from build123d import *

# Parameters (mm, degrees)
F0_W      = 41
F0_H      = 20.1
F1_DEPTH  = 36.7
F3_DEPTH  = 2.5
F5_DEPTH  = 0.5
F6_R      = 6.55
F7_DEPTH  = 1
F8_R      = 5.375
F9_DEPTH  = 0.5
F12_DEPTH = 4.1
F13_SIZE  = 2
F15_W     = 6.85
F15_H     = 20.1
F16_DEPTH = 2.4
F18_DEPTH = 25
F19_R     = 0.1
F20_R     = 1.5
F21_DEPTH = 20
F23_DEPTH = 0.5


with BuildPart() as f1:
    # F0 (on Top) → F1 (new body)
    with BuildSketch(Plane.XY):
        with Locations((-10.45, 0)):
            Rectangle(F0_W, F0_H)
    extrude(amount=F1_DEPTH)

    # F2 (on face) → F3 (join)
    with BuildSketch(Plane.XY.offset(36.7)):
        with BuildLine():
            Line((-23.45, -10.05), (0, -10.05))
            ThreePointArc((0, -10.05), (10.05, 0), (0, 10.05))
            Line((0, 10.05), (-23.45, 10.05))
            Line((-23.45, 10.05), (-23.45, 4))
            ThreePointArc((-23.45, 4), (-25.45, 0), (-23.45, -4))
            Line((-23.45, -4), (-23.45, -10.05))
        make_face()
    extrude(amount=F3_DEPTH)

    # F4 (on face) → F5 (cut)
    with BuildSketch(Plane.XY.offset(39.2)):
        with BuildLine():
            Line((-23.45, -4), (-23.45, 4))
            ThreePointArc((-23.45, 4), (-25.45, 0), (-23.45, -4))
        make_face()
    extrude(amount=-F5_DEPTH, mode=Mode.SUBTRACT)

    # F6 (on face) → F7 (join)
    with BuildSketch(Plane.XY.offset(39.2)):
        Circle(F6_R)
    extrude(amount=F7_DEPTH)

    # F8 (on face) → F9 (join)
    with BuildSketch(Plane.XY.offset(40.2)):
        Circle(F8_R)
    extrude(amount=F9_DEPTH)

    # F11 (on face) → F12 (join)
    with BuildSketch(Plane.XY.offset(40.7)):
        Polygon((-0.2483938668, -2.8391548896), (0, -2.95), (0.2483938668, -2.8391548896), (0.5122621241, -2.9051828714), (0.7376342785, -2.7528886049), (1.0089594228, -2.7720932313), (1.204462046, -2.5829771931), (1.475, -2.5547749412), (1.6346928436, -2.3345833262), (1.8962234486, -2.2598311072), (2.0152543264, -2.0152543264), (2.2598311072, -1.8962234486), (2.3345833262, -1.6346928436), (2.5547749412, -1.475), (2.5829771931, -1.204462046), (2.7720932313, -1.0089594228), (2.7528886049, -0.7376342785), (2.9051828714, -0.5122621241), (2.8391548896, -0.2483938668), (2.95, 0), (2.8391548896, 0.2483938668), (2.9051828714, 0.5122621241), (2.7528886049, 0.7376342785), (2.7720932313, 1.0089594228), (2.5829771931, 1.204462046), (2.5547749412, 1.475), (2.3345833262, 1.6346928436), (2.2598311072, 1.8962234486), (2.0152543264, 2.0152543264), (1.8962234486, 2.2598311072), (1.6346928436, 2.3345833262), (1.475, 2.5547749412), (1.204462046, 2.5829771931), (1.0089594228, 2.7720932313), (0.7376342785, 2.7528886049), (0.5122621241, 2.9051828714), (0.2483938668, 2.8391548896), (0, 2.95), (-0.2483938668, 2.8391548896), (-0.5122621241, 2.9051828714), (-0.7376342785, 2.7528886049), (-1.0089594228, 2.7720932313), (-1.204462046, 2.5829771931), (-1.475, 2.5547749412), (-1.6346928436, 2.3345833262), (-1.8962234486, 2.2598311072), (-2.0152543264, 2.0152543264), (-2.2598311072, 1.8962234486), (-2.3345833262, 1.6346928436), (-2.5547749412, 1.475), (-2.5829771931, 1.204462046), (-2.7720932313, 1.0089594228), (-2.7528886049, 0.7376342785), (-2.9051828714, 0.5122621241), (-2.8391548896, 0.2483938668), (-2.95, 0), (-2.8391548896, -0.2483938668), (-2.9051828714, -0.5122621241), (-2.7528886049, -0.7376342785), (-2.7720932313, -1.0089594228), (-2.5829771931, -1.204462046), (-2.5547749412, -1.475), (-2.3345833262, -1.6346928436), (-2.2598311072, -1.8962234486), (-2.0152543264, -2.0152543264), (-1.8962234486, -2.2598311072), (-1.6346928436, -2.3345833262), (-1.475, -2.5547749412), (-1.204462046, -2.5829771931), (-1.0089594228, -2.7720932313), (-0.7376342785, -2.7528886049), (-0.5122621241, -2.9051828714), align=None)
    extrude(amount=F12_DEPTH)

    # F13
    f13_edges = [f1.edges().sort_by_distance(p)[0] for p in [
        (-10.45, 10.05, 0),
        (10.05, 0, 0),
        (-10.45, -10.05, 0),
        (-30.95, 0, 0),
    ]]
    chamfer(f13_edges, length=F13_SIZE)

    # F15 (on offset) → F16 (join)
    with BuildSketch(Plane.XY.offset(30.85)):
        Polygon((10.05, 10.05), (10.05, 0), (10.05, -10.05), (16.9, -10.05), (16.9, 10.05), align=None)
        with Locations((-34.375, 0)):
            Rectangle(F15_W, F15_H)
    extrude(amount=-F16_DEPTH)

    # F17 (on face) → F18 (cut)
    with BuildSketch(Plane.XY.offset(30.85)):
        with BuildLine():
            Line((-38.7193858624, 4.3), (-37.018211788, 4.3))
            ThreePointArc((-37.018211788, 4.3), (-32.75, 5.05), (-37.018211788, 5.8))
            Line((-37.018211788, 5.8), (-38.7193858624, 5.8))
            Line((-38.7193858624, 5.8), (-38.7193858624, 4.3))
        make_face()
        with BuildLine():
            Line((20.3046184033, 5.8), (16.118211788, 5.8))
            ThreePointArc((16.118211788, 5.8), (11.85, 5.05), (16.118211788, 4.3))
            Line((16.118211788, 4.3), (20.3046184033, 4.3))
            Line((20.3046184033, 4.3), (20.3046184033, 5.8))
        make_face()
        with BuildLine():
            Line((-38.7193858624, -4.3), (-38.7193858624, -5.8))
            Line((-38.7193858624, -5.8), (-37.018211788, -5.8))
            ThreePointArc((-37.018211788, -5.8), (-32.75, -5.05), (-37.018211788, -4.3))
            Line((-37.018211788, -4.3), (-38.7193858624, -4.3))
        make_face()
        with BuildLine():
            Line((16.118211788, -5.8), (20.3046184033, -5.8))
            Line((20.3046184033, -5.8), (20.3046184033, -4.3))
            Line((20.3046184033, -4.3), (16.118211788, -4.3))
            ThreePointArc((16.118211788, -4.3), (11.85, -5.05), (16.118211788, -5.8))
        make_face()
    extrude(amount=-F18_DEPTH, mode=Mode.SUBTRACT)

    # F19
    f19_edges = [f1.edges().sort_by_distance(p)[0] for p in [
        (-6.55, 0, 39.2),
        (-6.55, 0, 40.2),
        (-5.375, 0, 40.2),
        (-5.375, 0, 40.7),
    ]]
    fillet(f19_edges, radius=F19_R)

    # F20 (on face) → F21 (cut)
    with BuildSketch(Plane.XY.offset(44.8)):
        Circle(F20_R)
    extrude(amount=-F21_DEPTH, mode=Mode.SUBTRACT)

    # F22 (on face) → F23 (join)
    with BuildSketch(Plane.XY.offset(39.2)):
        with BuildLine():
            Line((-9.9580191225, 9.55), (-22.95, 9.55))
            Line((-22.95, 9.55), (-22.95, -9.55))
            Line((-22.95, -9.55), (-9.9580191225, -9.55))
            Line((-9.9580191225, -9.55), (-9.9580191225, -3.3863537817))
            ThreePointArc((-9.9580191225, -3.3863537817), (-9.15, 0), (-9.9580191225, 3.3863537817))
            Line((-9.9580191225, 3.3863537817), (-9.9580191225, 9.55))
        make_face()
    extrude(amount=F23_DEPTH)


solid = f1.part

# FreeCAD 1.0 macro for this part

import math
import FreeCAD as App
import Part
import Sketcher
Q = App.Units.Quantity


def edges_at(feature, points):
    """Names of the edges that pass closest to the given points."""
    edges = feature.Shape.Edges
    near = lambda p: min(range(len(edges)), key=lambda i: edges[i].distToShape(Part.Vertex(*p))[0])
    return sorted({f"Edge{near(p) + 1}" for p in points})

doc = App.newDocument("Part")
body = doc.addObject("PartDesign::Body", "Body")

sketch1 = doc.addObject("Sketcher::SketchObject", "Sketch")
body.addObject(sketch1)
sketch1.AttachmentSupport = (doc.XY_Plane, [""])
sketch1.MapMode = "FlatFace"
sketch1.addGeometry([
    Part.LineSegment(App.Vector(-30.95, 10.05, 0), App.Vector(-30.95, -10.05, 0)),
    Part.LineSegment(App.Vector(-30.95, -10.05, 0), App.Vector(10.05, -10.05, 0)),
    Part.LineSegment(App.Vector(10.05, -10.05, 0), App.Vector(10.05, 10.05, 0)),
    Part.LineSegment(App.Vector(10.05, 10.05, 0), App.Vector(-30.95, 10.05, 0)),
], False)
sketch1.addConstraint([
    Sketcher.Constraint("Coincident", 0, 2, 1, 1),
    Sketcher.Constraint("Coincident", 1, 2, 2, 1),
    Sketcher.Constraint("Coincident", 2, 2, 3, 1),
    Sketcher.Constraint("Coincident", 3, 2, 0, 1),
    Sketcher.Constraint("Vertical", 0),
    Sketcher.Constraint("Horizontal", 1),
    Sketcher.Constraint("Vertical", 2),
    Sketcher.Constraint("Horizontal", 3),
    Sketcher.Constraint("DistanceX", 1, 1, 1, 2, Q("41 mm")),
    Sketcher.Constraint("DistanceY", 0, 2, 0, 1, Q("20.1 mm")),
    Sketcher.Constraint("DistanceX", 0, 2, -1, 1, Q("30.95 mm")),
    Sketcher.Constraint("DistanceY", 0, 2, -1, 1, Q("10.05 mm")),
])
pad1 = doc.addObject("PartDesign::Pad", "Pad")
body.addObject(pad1)
pad1.Profile = sketch1
pad1.Length = 36.7

sketch2 = doc.addObject("Sketcher::SketchObject", "Sketch001")
body.addObject(sketch2)
sketch2.AttachmentSupport = (doc.XY_Plane, [""])
sketch2.MapMode = "FlatFace"
sketch2.AttachmentOffset = App.Placement(App.Vector(0, 0, 36.7), App.Rotation())
sketch2.addGeometry([
    Part.LineSegment(App.Vector(-23.45, -10.05, 0), App.Vector(0, -10.05, 0)),
    Part.ArcOfCircle(Part.Circle(App.Vector(0, 0, 0), App.Vector(0, 0, 1), 10.05), math.radians(-90), math.radians(90)),
    Part.LineSegment(App.Vector(0, 10.05, 0), App.Vector(-23.45, 10.05, 0)),
    Part.LineSegment(App.Vector(-23.45, 10.05, 0), App.Vector(-23.45, 4, 0)),
    Part.ArcOfCircle(Part.Circle(App.Vector(-20.45, 0, 0), App.Vector(0, 0, 1), 5), math.radians(126.869898), math.radians(233.130102)),
    Part.LineSegment(App.Vector(-23.45, -4, 0), App.Vector(-23.45, -10.05, 0)),
], False)
sketch2.addConstraint([
    Sketcher.Constraint("Tangent", 0, 2, 1, 1),
    Sketcher.Constraint("Tangent", 1, 2, 2, 1),
    Sketcher.Constraint("Coincident", 2, 2, 3, 1),
    Sketcher.Constraint("Coincident", 3, 2, 4, 1),
    Sketcher.Constraint("Coincident", 4, 2, 5, 1),
    Sketcher.Constraint("Coincident", 5, 2, 0, 1),
    Sketcher.Constraint("Horizontal", 0),
    Sketcher.Constraint("Horizontal", 2),
    Sketcher.Constraint("Vertical", 3),
    Sketcher.Constraint("Vertical", 5),
    Sketcher.Constraint("Coincident", 1, 3, -1, 1),
    Sketcher.Constraint("Symmetric", 3, 2, 4, 2, -1),
    Sketcher.Constraint("Radius", 4, Q("5 mm")),
    Sketcher.Constraint("Radius", 1, Q("10.05 mm")),
    Sketcher.Constraint("DistanceY", -1, 1, 3, 2, Q("4 mm")),
    Sketcher.Constraint("DistanceX", 0, 1, 0, 2, Q("23.45 mm")),
])
pad2 = doc.addObject("PartDesign::Pad", "Pad001")
body.addObject(pad2)
pad2.Profile = sketch2
pad2.Length = 2.5

sketch3 = doc.addObject("Sketcher::SketchObject", "Sketch002")
body.addObject(sketch3)
sketch3.AttachmentSupport = (doc.XY_Plane, [""])
sketch3.MapMode = "FlatFace"
sketch3.AttachmentOffset = App.Placement(App.Vector(0, 0, 39.2), App.Rotation())
sketch3.addGeometry([
    Part.LineSegment(App.Vector(-23.45, -4, 0), App.Vector(-23.45, 4, 0)),
    Part.ArcOfCircle(Part.Circle(App.Vector(-20.45, 0, 0), App.Vector(0, 0, 1), 5), math.radians(126.869898), math.radians(233.130102)),
], False)
sketch3.addConstraint([
    Sketcher.Constraint("Coincident", 0, 1, 1, 2),
    Sketcher.Constraint("Coincident", 1, 1, 0, 2),
    Sketcher.Constraint("Vertical", 0),
    Sketcher.Constraint("PointOnObject", 1, 3, -1),
    Sketcher.Constraint("Radius", 1, Q("5 mm")),
    Sketcher.Constraint("DistanceY", 0, 1, 0, 2, Q("8 mm")),
    Sketcher.Constraint("DistanceX", 1, 3, -1, 1, Q("20.45 mm")),
])
pocket1 = doc.addObject("PartDesign::Pocket", "Pocket")
body.addObject(pocket1)
pocket1.Profile = sketch3
pocket1.Length = 0.5

sketch4 = doc.addObject("Sketcher::SketchObject", "Sketch003")
body.addObject(sketch4)
sketch4.AttachmentSupport = (doc.XY_Plane, [""])
sketch4.MapMode = "FlatFace"
sketch4.AttachmentOffset = App.Placement(App.Vector(0, 0, 39.2), App.Rotation())
sketch4.addGeometry(Part.Circle(App.Vector(0, 0, 0), App.Vector(0, 0, 1), 6.55), False)
sketch4.addConstraint([
    Sketcher.Constraint("Coincident", 0, 3, -1, 1),
    Sketcher.Constraint("Diameter", 0, Q("13.1 mm")),
])
pad3 = doc.addObject("PartDesign::Pad", "Pad002")
body.addObject(pad3)
pad3.Profile = sketch4
pad3.Length = 1

sketch5 = doc.addObject("Sketcher::SketchObject", "Sketch004")
body.addObject(sketch5)
sketch5.AttachmentSupport = (doc.XY_Plane, [""])
sketch5.MapMode = "FlatFace"
sketch5.AttachmentOffset = App.Placement(App.Vector(0, 0, 40.2), App.Rotation())
sketch5.addGeometry(Part.Circle(App.Vector(0, 0, 0), App.Vector(0, 0, 1), 5.375), False)
sketch5.addConstraint([
    Sketcher.Constraint("Coincident", 0, 3, -1, 1),
    Sketcher.Constraint("Diameter", 0, Q("10.75 mm")),
])
pad4 = doc.addObject("PartDesign::Pad", "Pad003")
body.addObject(pad4)
pad4.Profile = sketch5
pad4.Length = 0.5

sketch6 = doc.addObject("Sketcher::SketchObject", "Sketch005")
body.addObject(sketch6)
sketch6.AttachmentSupport = (doc.XY_Plane, [""])
sketch6.MapMode = "FlatFace"
sketch6.AttachmentOffset = App.Placement(App.Vector(0, 0, 40.7), App.Rotation())
sketch6.addGeometry([
    Part.LineSegment(App.Vector(-0.248394, -2.839155, 0), App.Vector(0, -2.95, 0)),
    Part.LineSegment(App.Vector(0, -2.95, 0), App.Vector(0.248394, -2.839155, 0)),
    Part.LineSegment(App.Vector(0.248394, -2.839155, 0), App.Vector(0.512262, -2.905183, 0)),
    Part.LineSegment(App.Vector(0.512262, -2.905183, 0), App.Vector(0.737634, -2.752889, 0)),
    Part.LineSegment(App.Vector(0.737634, -2.752889, 0), App.Vector(1.008959, -2.772093, 0)),
    Part.LineSegment(App.Vector(1.008959, -2.772093, 0), App.Vector(1.204462, -2.582977, 0)),
    Part.LineSegment(App.Vector(1.204462, -2.582977, 0), App.Vector(1.475, -2.554775, 0)),
    Part.LineSegment(App.Vector(1.475, -2.554775, 0), App.Vector(1.634693, -2.334583, 0)),
    Part.LineSegment(App.Vector(1.634693, -2.334583, 0), App.Vector(1.896223, -2.259831, 0)),
    Part.LineSegment(App.Vector(1.896223, -2.259831, 0), App.Vector(2.015254, -2.015254, 0)),
    Part.LineSegment(App.Vector(2.015254, -2.015254, 0), App.Vector(2.259831, -1.896223, 0)),
    Part.LineSegment(App.Vector(2.259831, -1.896223, 0), App.Vector(2.334583, -1.634693, 0)),
    Part.LineSegment(App.Vector(2.334583, -1.634693, 0), App.Vector(2.554775, -1.475, 0)),
    Part.LineSegment(App.Vector(2.554775, -1.475, 0), App.Vector(2.582977, -1.204462, 0)),
    Part.LineSegment(App.Vector(2.582977, -1.204462, 0), App.Vector(2.772093, -1.008959, 0)),
    Part.LineSegment(App.Vector(2.772093, -1.008959, 0), App.Vector(2.752889, -0.737634, 0)),
    Part.LineSegment(App.Vector(2.752889, -0.737634, 0), App.Vector(2.905183, -0.512262, 0)),
    Part.LineSegment(App.Vector(2.905183, -0.512262, 0), App.Vector(2.839155, -0.248394, 0)),
    Part.LineSegment(App.Vector(2.839155, -0.248394, 0), App.Vector(2.95, 0, 0)),
    Part.LineSegment(App.Vector(2.95, 0, 0), App.Vector(2.839155, 0.248394, 0)),
    Part.LineSegment(App.Vector(2.839155, 0.248394, 0), App.Vector(2.905183, 0.512262, 0)),
    Part.LineSegment(App.Vector(2.905183, 0.512262, 0), App.Vector(2.752889, 0.737634, 0)),
    Part.LineSegment(App.Vector(2.752889, 0.737634, 0), App.Vector(2.772093, 1.008959, 0)),
    Part.LineSegment(App.Vector(2.772093, 1.008959, 0), App.Vector(2.582977, 1.204462, 0)),
    Part.LineSegment(App.Vector(2.582977, 1.204462, 0), App.Vector(2.554775, 1.475, 0)),
    Part.LineSegment(App.Vector(2.554775, 1.475, 0), App.Vector(2.334583, 1.634693, 0)),
    Part.LineSegment(App.Vector(2.334583, 1.634693, 0), App.Vector(2.259831, 1.896223, 0)),
    Part.LineSegment(App.Vector(2.259831, 1.896223, 0), App.Vector(2.015254, 2.015254, 0)),
    Part.LineSegment(App.Vector(2.015254, 2.015254, 0), App.Vector(1.896223, 2.259831, 0)),
    Part.LineSegment(App.Vector(1.896223, 2.259831, 0), App.Vector(1.634693, 2.334583, 0)),
    Part.LineSegment(App.Vector(1.634693, 2.334583, 0), App.Vector(1.475, 2.554775, 0)),
    Part.LineSegment(App.Vector(1.475, 2.554775, 0), App.Vector(1.204462, 2.582977, 0)),
    Part.LineSegment(App.Vector(1.204462, 2.582977, 0), App.Vector(1.008959, 2.772093, 0)),
    Part.LineSegment(App.Vector(1.008959, 2.772093, 0), App.Vector(0.737634, 2.752889, 0)),
    Part.LineSegment(App.Vector(0.737634, 2.752889, 0), App.Vector(0.512262, 2.905183, 0)),
    Part.LineSegment(App.Vector(0.512262, 2.905183, 0), App.Vector(0.248394, 2.839155, 0)),
    Part.LineSegment(App.Vector(0.248394, 2.839155, 0), App.Vector(0, 2.95, 0)),
    Part.LineSegment(App.Vector(0, 2.95, 0), App.Vector(-0.248394, 2.839155, 0)),
    Part.LineSegment(App.Vector(-0.248394, 2.839155, 0), App.Vector(-0.512262, 2.905183, 0)),
    Part.LineSegment(App.Vector(-0.512262, 2.905183, 0), App.Vector(-0.737634, 2.752889, 0)),
    Part.LineSegment(App.Vector(-0.737634, 2.752889, 0), App.Vector(-1.008959, 2.772093, 0)),
    Part.LineSegment(App.Vector(-1.008959, 2.772093, 0), App.Vector(-1.204462, 2.582977, 0)),
    Part.LineSegment(App.Vector(-1.204462, 2.582977, 0), App.Vector(-1.475, 2.554775, 0)),
    Part.LineSegment(App.Vector(-1.475, 2.554775, 0), App.Vector(-1.634693, 2.334583, 0)),
    Part.LineSegment(App.Vector(-1.634693, 2.334583, 0), App.Vector(-1.896223, 2.259831, 0)),
    Part.LineSegment(App.Vector(-1.896223, 2.259831, 0), App.Vector(-2.015254, 2.015254, 0)),
    Part.LineSegment(App.Vector(-2.015254, 2.015254, 0), App.Vector(-2.259831, 1.896223, 0)),
    Part.LineSegment(App.Vector(-2.259831, 1.896223, 0), App.Vector(-2.334583, 1.634693, 0)),
    Part.LineSegment(App.Vector(-2.334583, 1.634693, 0), App.Vector(-2.554775, 1.475, 0)),
    Part.LineSegment(App.Vector(-2.554775, 1.475, 0), App.Vector(-2.582977, 1.204462, 0)),
    Part.LineSegment(App.Vector(-2.582977, 1.204462, 0), App.Vector(-2.772093, 1.008959, 0)),
    Part.LineSegment(App.Vector(-2.772093, 1.008959, 0), App.Vector(-2.752889, 0.737634, 0)),
    Part.LineSegment(App.Vector(-2.752889, 0.737634, 0), App.Vector(-2.905183, 0.512262, 0)),
    Part.LineSegment(App.Vector(-2.905183, 0.512262, 0), App.Vector(-2.839155, 0.248394, 0)),
    Part.LineSegment(App.Vector(-2.839155, 0.248394, 0), App.Vector(-2.95, 0, 0)),
    Part.LineSegment(App.Vector(-2.95, 0, 0), App.Vector(-2.839155, -0.248394, 0)),
    Part.LineSegment(App.Vector(-2.839155, -0.248394, 0), App.Vector(-2.905183, -0.512262, 0)),
    Part.LineSegment(App.Vector(-2.905183, -0.512262, 0), App.Vector(-2.752889, -0.737634, 0)),
    Part.LineSegment(App.Vector(-2.752889, -0.737634, 0), App.Vector(-2.772093, -1.008959, 0)),
    Part.LineSegment(App.Vector(-2.772093, -1.008959, 0), App.Vector(-2.582977, -1.204462, 0)),
    Part.LineSegment(App.Vector(-2.582977, -1.204462, 0), App.Vector(-2.554775, -1.475, 0)),
    Part.LineSegment(App.Vector(-2.554775, -1.475, 0), App.Vector(-2.334583, -1.634693, 0)),
    Part.LineSegment(App.Vector(-2.334583, -1.634693, 0), App.Vector(-2.259831, -1.896223, 0)),
    Part.LineSegment(App.Vector(-2.259831, -1.896223, 0), App.Vector(-2.015254, -2.015254, 0)),
    Part.LineSegment(App.Vector(-2.015254, -2.015254, 0), App.Vector(-1.896223, -2.259831, 0)),
    Part.LineSegment(App.Vector(-1.896223, -2.259831, 0), App.Vector(-1.634693, -2.334583, 0)),
    Part.LineSegment(App.Vector(-1.634693, -2.334583, 0), App.Vector(-1.475, -2.554775, 0)),
    Part.LineSegment(App.Vector(-1.475, -2.554775, 0), App.Vector(-1.204462, -2.582977, 0)),
    Part.LineSegment(App.Vector(-1.204462, -2.582977, 0), App.Vector(-1.008959, -2.772093, 0)),
    Part.LineSegment(App.Vector(-1.008959, -2.772093, 0), App.Vector(-0.737634, -2.752889, 0)),
    Part.LineSegment(App.Vector(-0.737634, -2.752889, 0), App.Vector(-0.512262, -2.905183, 0)),
    Part.LineSegment(App.Vector(-0.512262, -2.905183, 0), App.Vector(-0.248394, -2.839155, 0)),
], False)
sketch6.addConstraint([
    Sketcher.Constraint("Coincident", 0, 2, 1, 1),
    Sketcher.Constraint("Coincident", 1, 2, 2, 1),
    Sketcher.Constraint("Coincident", 2, 2, 3, 1),
    Sketcher.Constraint("Coincident", 3, 2, 4, 1),
    Sketcher.Constraint("Coincident", 4, 2, 5, 1),
    Sketcher.Constraint("Coincident", 5, 2, 6, 1),
    Sketcher.Constraint("Coincident", 6, 2, 7, 1),
    Sketcher.Constraint("Coincident", 7, 2, 8, 1),
    Sketcher.Constraint("Coincident", 8, 2, 9, 1),
    Sketcher.Constraint("Coincident", 9, 2, 10, 1),
    Sketcher.Constraint("Coincident", 10, 2, 11, 1),
    Sketcher.Constraint("Coincident", 11, 2, 12, 1),
    Sketcher.Constraint("Coincident", 12, 2, 13, 1),
    Sketcher.Constraint("Coincident", 13, 2, 14, 1),
    Sketcher.Constraint("Coincident", 14, 2, 15, 1),
    Sketcher.Constraint("Coincident", 15, 2, 16, 1),
    Sketcher.Constraint("Coincident", 16, 2, 17, 1),
    Sketcher.Constraint("Coincident", 17, 2, 18, 1),
    Sketcher.Constraint("Coincident", 18, 2, 19, 1),
    Sketcher.Constraint("Coincident", 19, 2, 20, 1),
    Sketcher.Constraint("Coincident", 20, 2, 21, 1),
    Sketcher.Constraint("Coincident", 21, 2, 22, 1),
    Sketcher.Constraint("Coincident", 22, 2, 23, 1),
    Sketcher.Constraint("Coincident", 23, 2, 24, 1),
    Sketcher.Constraint("Coincident", 24, 2, 25, 1),
    Sketcher.Constraint("Coincident", 25, 2, 26, 1),
    Sketcher.Constraint("Coincident", 26, 2, 27, 1),
    Sketcher.Constraint("Coincident", 27, 2, 28, 1),
    Sketcher.Constraint("Coincident", 28, 2, 29, 1),
    Sketcher.Constraint("Coincident", 29, 2, 30, 1),
    Sketcher.Constraint("Coincident", 30, 2, 31, 1),
    Sketcher.Constraint("Coincident", 31, 2, 32, 1),
    Sketcher.Constraint("Coincident", 32, 2, 33, 1),
    Sketcher.Constraint("Coincident", 33, 2, 34, 1),
    Sketcher.Constraint("Coincident", 34, 2, 35, 1),
    Sketcher.Constraint("Coincident", 35, 2, 36, 1),
    Sketcher.Constraint("Coincident", 36, 2, 37, 1),
    Sketcher.Constraint("Coincident", 37, 2, 38, 1),
    Sketcher.Constraint("Coincident", 38, 2, 39, 1),
    Sketcher.Constraint("Coincident", 39, 2, 40, 1),
    Sketcher.Constraint("Coincident", 40, 2, 41, 1),
    Sketcher.Constraint("Coincident", 41, 2, 42, 1),
    Sketcher.Constraint("Coincident", 42, 2, 43, 1),
    Sketcher.Constraint("Coincident", 43, 2, 44, 1),
    Sketcher.Constraint("Coincident", 44, 2, 45, 1),
    Sketcher.Constraint("Coincident", 45, 2, 46, 1),
    Sketcher.Constraint("Coincident", 46, 2, 47, 1),
    Sketcher.Constraint("Coincident", 47, 2, 48, 1),
    Sketcher.Constraint("Coincident", 48, 2, 49, 1),
    Sketcher.Constraint("Coincident", 49, 2, 50, 1),
    Sketcher.Constraint("Coincident", 50, 2, 51, 1),
    Sketcher.Constraint("Coincident", 51, 2, 52, 1),
    Sketcher.Constraint("Coincident", 52, 2, 53, 1),
    Sketcher.Constraint("Coincident", 53, 2, 54, 1),
    Sketcher.Constraint("Coincident", 54, 2, 55, 1),
    Sketcher.Constraint("Coincident", 55, 2, 56, 1),
    Sketcher.Constraint("Coincident", 56, 2, 57, 1),
    Sketcher.Constraint("Coincident", 57, 2, 58, 1),
    Sketcher.Constraint("Coincident", 58, 2, 59, 1),
    Sketcher.Constraint("Coincident", 59, 2, 60, 1),
    Sketcher.Constraint("Coincident", 60, 2, 61, 1),
    Sketcher.Constraint("Coincident", 61, 2, 62, 1),
    Sketcher.Constraint("Coincident", 62, 2, 63, 1),
    Sketcher.Constraint("Coincident", 63, 2, 64, 1),
    Sketcher.Constraint("Coincident", 64, 2, 65, 1),
    Sketcher.Constraint("Coincident", 65, 2, 66, 1),
    Sketcher.Constraint("Coincident", 66, 2, 67, 1),
    Sketcher.Constraint("Coincident", 67, 2, 68, 1),
    Sketcher.Constraint("Coincident", 68, 2, 69, 1),
    Sketcher.Constraint("Coincident", 69, 2, 70, 1),
    Sketcher.Constraint("Coincident", 70, 2, 71, 1),
    Sketcher.Constraint("Coincident", 71, 2, 0, 1),
    Sketcher.Constraint("Symmetric", 0, 2, 36, 2, -1, 1),
    Sketcher.Constraint("Symmetric", 1, 2, 37, 2, -1, 1),
    Sketcher.Constraint("Symmetric", 2, 2, 38, 2, -1, 1),
    Sketcher.Constraint("Symmetric", 3, 2, 39, 2, -1, 1),
    Sketcher.Constraint("Symmetric", 4, 2, 40, 2, -1, 1),
    Sketcher.Constraint("Symmetric", 5, 2, 41, 2, -1, 1),
    Sketcher.Constraint("Symmetric", 6, 2, 42, 2, -1, 1),
    Sketcher.Constraint("Symmetric", 7, 2, 43, 2, -1, 1),
    Sketcher.Constraint("Symmetric", 8, 2, 44, 2, -1, 1),
    Sketcher.Constraint("Symmetric", 9, 2, 45, 2, -1, 1),
    Sketcher.Constraint("Symmetric", 10, 2, 46, 2, -1, 1),
    Sketcher.Constraint("Symmetric", 11, 2, 47, 2, -1, 1),
    Sketcher.Constraint("Symmetric", 12, 2, 48, 2, -1, 1),
    Sketcher.Constraint("Symmetric", 13, 2, 49, 2, -1, 1),
    Sketcher.Constraint("Symmetric", 14, 2, 50, 2, -1, 1),
    Sketcher.Constraint("Symmetric", 15, 2, 51, 2, -1, 1),
    Sketcher.Constraint("Symmetric", 16, 2, 52, 2, -1, 1),
    Sketcher.Constraint("Symmetric", 17, 2, 53, 2, -1, 1),
    Sketcher.Constraint("Symmetric", 18, 2, 54, 2, -1, 1),
    Sketcher.Constraint("Symmetric", 19, 2, 55, 2, -1, 1),
    Sketcher.Constraint("Symmetric", 20, 2, 56, 2, -1, 1),
    Sketcher.Constraint("Symmetric", 21, 2, 57, 2, -1, 1),
    Sketcher.Constraint("Symmetric", 22, 2, 58, 2, -1, 1),
    Sketcher.Constraint("Symmetric", 23, 2, 59, 2, -1, 1),
    Sketcher.Constraint("Symmetric", 24, 2, 60, 2, -1, 1),
    Sketcher.Constraint("Symmetric", 25, 2, 61, 2, -1, 1),
    Sketcher.Constraint("Symmetric", 26, 2, 62, 2, -1, 1),
    Sketcher.Constraint("Symmetric", 27, 2, 63, 2, -1, 1),
    Sketcher.Constraint("Symmetric", 28, 2, 64, 2, -1, 1),
    Sketcher.Constraint("Symmetric", 29, 2, 65, 2, -1, 1),
    Sketcher.Constraint("Symmetric", 30, 2, 66, 2, -1, 1),
    Sketcher.Constraint("Symmetric", 31, 2, 67, 2, -1, 1),
    Sketcher.Constraint("Symmetric", 32, 2, 68, 2, -1, 1),
    Sketcher.Constraint("Symmetric", 33, 2, 69, 2, -1, 1),
    Sketcher.Constraint("Symmetric", 34, 2, 70, 2, -1, 1),
    Sketcher.Constraint("Symmetric", 35, 2, 71, 2, -1, 1),
    Sketcher.Constraint("Symmetric", 35, 2, 37, 2, -2),
    Sketcher.Constraint("Symmetric", 34, 2, 38, 2, -2),
    Sketcher.Constraint("Symmetric", 33, 2, 39, 2, -2),
    Sketcher.Constraint("Symmetric", 32, 2, 40, 2, -2),
    Sketcher.Constraint("Symmetric", 31, 2, 41, 2, -2),
    Sketcher.Constraint("Symmetric", 30, 2, 42, 2, -2),
    Sketcher.Constraint("Symmetric", 29, 2, 43, 2, -2),
    Sketcher.Constraint("Symmetric", 28, 2, 44, 2, -2),
    Sketcher.Constraint("Symmetric", 27, 2, 45, 2, -2),
    Sketcher.Constraint("Symmetric", 26, 2, 46, 2, -2),
    Sketcher.Constraint("Symmetric", 25, 2, 47, 2, -2),
    Sketcher.Constraint("Symmetric", 24, 2, 48, 2, -2),
    Sketcher.Constraint("Symmetric", 23, 2, 49, 2, -2),
    Sketcher.Constraint("Symmetric", 22, 2, 50, 2, -2),
    Sketcher.Constraint("Symmetric", 21, 2, 51, 2, -2),
    Sketcher.Constraint("Symmetric", 20, 2, 52, 2, -2),
    Sketcher.Constraint("Symmetric", 19, 2, 53, 2, -2),
    Sketcher.Constraint("PointOnObject", 0, 2, -2),
    Sketcher.Constraint("PointOnObject", 18, 2, -1),
    Sketcher.Constraint("Perpendicular", 0, 18),
    Sketcher.Constraint("Perpendicular", 2, 20),
    Sketcher.Constraint("Perpendicular", 3, 21),
    Sketcher.Constraint("Perpendicular", 4, 22),
    Sketcher.Constraint("Perpendicular", 5, 23),
    Sketcher.Constraint("Perpendicular", 6, 24),
    Sketcher.Constraint("Perpendicular", 7, 25),
    Sketcher.Constraint("Perpendicular", 8, 26),
    Sketcher.Constraint("Perpendicular", 9, 27),
    Sketcher.Constraint("Equal", 1, 2),
    Sketcher.Constraint("Equal", 2, 3),
    Sketcher.Constraint("Equal", 3, 4),
    Sketcher.Constraint("Equal", 4, 5),
    Sketcher.Constraint("Equal", 5, 6),
    Sketcher.Constraint("Equal", 6, 7),
    Sketcher.Constraint("Equal", 7, 8),
    Sketcher.Constraint("Equal", 8, 9),
    Sketcher.Constraint("Equal", 9, 10),
    Sketcher.Constraint("Equal", 10, 11),
    Sketcher.Constraint("Equal", 11, 12),
    Sketcher.Constraint("Equal", 12, 13),
    Sketcher.Constraint("Equal", 13, 14),
    Sketcher.Constraint("Equal", 14, 15),
    Sketcher.Constraint("Equal", 15, 16),
    Sketcher.Constraint("Equal", 16, 17),
    Sketcher.Constraint("Equal", 17, 18),
    Sketcher.Constraint("DistanceY", 0, 2, -1, 1, Q("2.95 mm")),
    Sketcher.Constraint("DistanceX", -1, 1, 6, 2, Q("1.475 mm")),
    Sketcher.Constraint("DistanceY", 3, 2, -1, 1, Q("2.752889 mm")),
    Sketcher.Constraint("DistanceX", -1, 1, 4, 2, Q("1.008959 mm")),
    Sketcher.Constraint("DistanceY", 8, 2, -1, 1, Q("2.259831 mm")),
    Sketcher.Constraint("Distance", 0, Q("0.272004 mm")),
    Sketcher.Constraint("DistanceX", -1, 1, 1, 2, Q("0.248394 mm")),
    Sketcher.Constraint("DistanceX", -1, 1, 2, 2, Q("0.512262 mm")),
    Sketcher.Constraint("DistanceX", -1, 1, 5, 2, Q("1.204462 mm")),
    Sketcher.Constraint("DistanceX", -1, 1, 7, 2, Q("1.634693 mm")),
])
pad5 = doc.addObject("PartDesign::Pad", "Pad004")
body.addObject(pad5)
pad5.Profile = sketch6
pad5.Length = 4.1
doc.recompute()

chamfer = doc.addObject("PartDesign::Chamfer", "Chamfer")
body.addObject(chamfer)
chamfer.Base = (pad5, edges_at(pad5, [
    (-10.45, 10.05, 0),
    (10.05, 0, 0),
    (-10.45, -10.05, 0),
    (-30.95, 0, 0),
]))
chamfer.Size = 2

sketch7 = doc.addObject("Sketcher::SketchObject", "Sketch006")
body.addObject(sketch7)
sketch7.AttachmentSupport = (doc.XY_Plane, [""])
sketch7.MapMode = "FlatFace"
sketch7.AttachmentOffset = App.Placement(App.Vector(0, 0, 30.85), App.Rotation())
sketch7.addGeometry([
    Part.LineSegment(App.Vector(10.05, 10.05, 0), App.Vector(10.05, -10.05, 0)),
    Part.LineSegment(App.Vector(10.05, -10.05, 0), App.Vector(16.9, -10.05, 0)),
    Part.LineSegment(App.Vector(16.9, -10.05, 0), App.Vector(16.9, 10.05, 0)),
    Part.LineSegment(App.Vector(16.9, 10.05, 0), App.Vector(10.05, 10.05, 0)),
    Part.LineSegment(App.Vector(-37.8, 10.05, 0), App.Vector(-37.8, -10.05, 0)),
    Part.LineSegment(App.Vector(-37.8, -10.05, 0), App.Vector(-30.95, -10.05, 0)),
    Part.LineSegment(App.Vector(-30.95, -10.05, 0), App.Vector(-30.95, 10.05, 0)),
    Part.LineSegment(App.Vector(-30.95, 10.05, 0), App.Vector(-37.8, 10.05, 0)),
], False)
sketch7.addConstraint([
    Sketcher.Constraint("Coincident", 0, 2, 1, 1),
    Sketcher.Constraint("Coincident", 1, 2, 2, 1),
    Sketcher.Constraint("Coincident", 2, 2, 3, 1),
    Sketcher.Constraint("Coincident", 3, 2, 0, 1),
    Sketcher.Constraint("Coincident", 4, 2, 5, 1),
    Sketcher.Constraint("Coincident", 5, 2, 6, 1),
    Sketcher.Constraint("Coincident", 6, 2, 7, 1),
    Sketcher.Constraint("Coincident", 7, 2, 4, 1),
    Sketcher.Constraint("Vertical", 0),
    Sketcher.Constraint("Horizontal", 1),
    Sketcher.Constraint("Vertical", 2),
    Sketcher.Constraint("Horizontal", 3),
    Sketcher.Constraint("Vertical", 4),
    Sketcher.Constraint("Horizontal", 5),
    Sketcher.Constraint("Vertical", 6),
    Sketcher.Constraint("Horizontal", 7),
    Sketcher.Constraint("Horizontal", 1, 2, 4, 2),
    Sketcher.Constraint("Horizontal", 3, 2, 6, 2),
    Sketcher.Constraint("Equal", 3, 5),
    Sketcher.Constraint("DistanceY", 0, 2, 0, 1, Q("20.1 mm")),
    Sketcher.Constraint("DistanceX", 5, 2, 0, 2, Q("41 mm")),
    Sketcher.Constraint("DistanceX", 1, 1, 1, 2, Q("6.85 mm")),
    Sketcher.Constraint("DistanceX", -1, 1, 1, 2, Q("16.9 mm")),
    Sketcher.Constraint("DistanceY", 0, 2, -1, 1, Q("10.05 mm")),
])
pad6 = doc.addObject("PartDesign::Pad", "Pad005")
body.addObject(pad6)
pad6.Profile = sketch7
pad6.Length = 2.4
pad6.Reversed = True

sketch8 = doc.addObject("Sketcher::SketchObject", "Sketch007")
body.addObject(sketch8)
sketch8.AttachmentSupport = (doc.XY_Plane, [""])
sketch8.MapMode = "FlatFace"
sketch8.AttachmentOffset = App.Placement(App.Vector(0, 0, 30.85), App.Rotation())
sketch8.addGeometry([
    Part.LineSegment(App.Vector(-38.719386, 4.3, 0), App.Vector(-37.018212, 4.3, 0)),
    Part.ArcOfCircle(Part.Circle(App.Vector(-34.95, 5.05, 0), App.Vector(0, 0, 1), 2.2), math.radians(-160.06773), math.radians(160.06773)),
    Part.LineSegment(App.Vector(-37.018212, 5.8, 0), App.Vector(-38.719386, 5.8, 0)),
    Part.LineSegment(App.Vector(-38.719386, 5.8, 0), App.Vector(-38.719386, 4.3, 0)),
    Part.LineSegment(App.Vector(20.304618, 5.8, 0), App.Vector(16.118212, 5.8, 0)),
    Part.ArcOfCircle(Part.Circle(App.Vector(14.05, 5.05, 0), App.Vector(0, 0, 1), 2.2), math.radians(19.93227), math.radians(340.06773)),
    Part.LineSegment(App.Vector(16.118212, 4.3, 0), App.Vector(20.304618, 4.3, 0)),
    Part.LineSegment(App.Vector(20.304618, 4.3, 0), App.Vector(20.304618, 5.8, 0)),
    Part.LineSegment(App.Vector(-38.719386, -4.3, 0), App.Vector(-38.719386, -5.8, 0)),
    Part.LineSegment(App.Vector(-38.719386, -5.8, 0), App.Vector(-37.018212, -5.8, 0)),
    Part.ArcOfCircle(Part.Circle(App.Vector(-34.95, -5.05, 0), App.Vector(0, 0, 1), 2.2), math.radians(-160.06773), math.radians(160.06773)),
    Part.LineSegment(App.Vector(-37.018212, -4.3, 0), App.Vector(-38.719386, -4.3, 0)),
    Part.LineSegment(App.Vector(16.118212, -5.8, 0), App.Vector(20.304618, -5.8, 0)),
    Part.LineSegment(App.Vector(20.304618, -5.8, 0), App.Vector(20.304618, -4.3, 0)),
    Part.LineSegment(App.Vector(20.304618, -4.3, 0), App.Vector(16.118212, -4.3, 0)),
    Part.ArcOfCircle(Part.Circle(App.Vector(14.05, -5.05, 0), App.Vector(0, 0, 1), 2.2), math.radians(19.93227), math.radians(340.06773)),
], False)
sketch8.addConstraint([
    Sketcher.Constraint("Coincident", 0, 2, 1, 1),
    Sketcher.Constraint("Coincident", 1, 2, 2, 1),
    Sketcher.Constraint("Coincident", 2, 2, 3, 1),
    Sketcher.Constraint("Coincident", 3, 2, 0, 1),
    Sketcher.Constraint("Coincident", 4, 2, 5, 1),
    Sketcher.Constraint("Coincident", 5, 2, 6, 1),
    Sketcher.Constraint("Coincident", 6, 2, 7, 1),
    Sketcher.Constraint("Coincident", 7, 2, 4, 1),
    Sketcher.Constraint("Coincident", 8, 2, 9, 1),
    Sketcher.Constraint("Coincident", 9, 2, 10, 1),
    Sketcher.Constraint("Coincident", 10, 2, 11, 1),
    Sketcher.Constraint("Coincident", 11, 2, 8, 1),
    Sketcher.Constraint("Coincident", 12, 2, 13, 1),
    Sketcher.Constraint("Coincident", 13, 2, 14, 1),
    Sketcher.Constraint("Coincident", 14, 2, 15, 1),
    Sketcher.Constraint("Coincident", 15, 2, 12, 1),
    Sketcher.Constraint("Horizontal", 0),
    Sketcher.Constraint("Horizontal", 2),
    Sketcher.Constraint("Vertical", 3),
    Sketcher.Constraint("Horizontal", 4),
    Sketcher.Constraint("Horizontal", 6),
    Sketcher.Constraint("Vertical", 7),
    Sketcher.Constraint("Vertical", 8),
    Sketcher.Constraint("Horizontal", 9),
    Sketcher.Constraint("Horizontal", 11),
    Sketcher.Constraint("Horizontal", 12),
    Sketcher.Constraint("Vertical", 13),
    Sketcher.Constraint("Horizontal", 14),
    Sketcher.Constraint("Equal", 1, 5),
    Sketcher.Constraint("Equal", 5, 10),
    Sketcher.Constraint("Equal", 10, 15),
    Sketcher.Constraint("Symmetric", 1, 3, 10, 3, -1),
    Sketcher.Constraint("Symmetric", 5, 3, 15, 3, -1),
    Sketcher.Constraint("Symmetric", 2, 2, 8, 2, -1),
    Sketcher.Constraint("Symmetric", 7, 2, 12, 2, -1),
    Sketcher.Constraint("Horizontal", 1, 3, 5, 3),
    Sketcher.Constraint("Horizontal", 2, 2, 4, 2),
    Sketcher.Constraint("Horizontal", 3, 2, 5, 2),
    Sketcher.Constraint("Horizontal", 11, 2, 13, 2),
    Sketcher.Constraint("Vertical", 0, 2, 1, 2),
    Sketcher.Constraint("Vertical", 9, 2, 10, 2),
    Sketcher.Constraint("Radius", 1, Q("2.2 mm")),
    Sketcher.Constraint("DistanceY", 3, 2, 3, 1, Q("1.5 mm")),
    Sketcher.Constraint("DistanceX", 1, 3, 5, 3, Q("49 mm")),
    Sketcher.Constraint("DistanceY", -1, 1, 0, 2, Q("4.3 mm")),
    Sketcher.Constraint("DistanceX", 1, 3, -1, 1, Q("34.95 mm")),
    Sketcher.Constraint("DistanceX", 0, 1, 0, 2, Q("1.701174 mm")),
    Sketcher.Constraint("DistanceX", 4, 2, 4, 1, Q("4.186407 mm")),
])
pocket2 = doc.addObject("PartDesign::Pocket", "Pocket001")
body.addObject(pocket2)
pocket2.Profile = sketch8
pocket2.Length = 25
doc.recompute()

fillet = doc.addObject("PartDesign::Fillet", "Fillet")
body.addObject(fillet)
fillet.Base = (pocket2, edges_at(pocket2, [
    (-6.55, 0, 39.2),
    (-6.55, 0, 40.2),
    (-5.375, 0, 40.2),
    (-5.375, 0, 40.7),
]))
fillet.Radius = 0.1

sketch9 = doc.addObject("Sketcher::SketchObject", "Sketch008")
body.addObject(sketch9)
sketch9.AttachmentSupport = (doc.XY_Plane, [""])
sketch9.MapMode = "FlatFace"
sketch9.AttachmentOffset = App.Placement(App.Vector(0, 0, 44.8), App.Rotation())
sketch9.addGeometry(Part.Circle(App.Vector(0, 0, 0), App.Vector(0, 0, 1), 1.5), False)
sketch9.addConstraint([
    Sketcher.Constraint("Coincident", 0, 3, -1, 1),
    Sketcher.Constraint("Diameter", 0, Q("3 mm")),
])
pocket3 = doc.addObject("PartDesign::Pocket", "Pocket002")
body.addObject(pocket3)
pocket3.Profile = sketch9
pocket3.Length = 20

sketch10 = doc.addObject("Sketcher::SketchObject", "Sketch009")
body.addObject(sketch10)
sketch10.AttachmentSupport = (doc.XY_Plane, [""])
sketch10.MapMode = "FlatFace"
sketch10.AttachmentOffset = App.Placement(App.Vector(0, 0, 39.2), App.Rotation())
sketch10.addGeometry([
    Part.LineSegment(App.Vector(-9.958019, 9.55, 0), App.Vector(-22.95, 9.55, 0)),
    Part.LineSegment(App.Vector(-22.95, 9.55, 0), App.Vector(-22.95, -9.55, 0)),
    Part.LineSegment(App.Vector(-22.95, -9.55, 0), App.Vector(-9.958019, -9.55, 0)),
    Part.LineSegment(App.Vector(-9.958019, -9.55, 0), App.Vector(-9.958019, -3.386354, 0)),
    Part.ArcOfCircle(Part.Circle(App.Vector(-16.65, 0, 0), App.Vector(0, 0, 1), 7.5), math.radians(-26.840852), math.radians(26.840852)),
    Part.LineSegment(App.Vector(-9.958019, 3.386354, 0), App.Vector(-9.958019, 9.55, 0)),
], False)
sketch10.addConstraint([
    Sketcher.Constraint("Coincident", 0, 2, 1, 1),
    Sketcher.Constraint("Coincident", 1, 2, 2, 1),
    Sketcher.Constraint("Coincident", 2, 2, 3, 1),
    Sketcher.Constraint("Coincident", 3, 2, 4, 1),
    Sketcher.Constraint("Coincident", 4, 2, 5, 1),
    Sketcher.Constraint("Coincident", 5, 2, 0, 1),
    Sketcher.Constraint("Horizontal", 0),
    Sketcher.Constraint("Vertical", 1),
    Sketcher.Constraint("Horizontal", 2),
    Sketcher.Constraint("Vertical", 3),
    Sketcher.Constraint("Vertical", 5),
    Sketcher.Constraint("Symmetric", 3, 2, 4, 2, -1),
    Sketcher.Constraint("Equal", 3, 5),
    Sketcher.Constraint("Radius", 4, Q("7.5 mm")),
    Sketcher.Constraint("DistanceY", 1, 2, 1, 1, Q("19.1 mm")),
    Sketcher.Constraint("DistanceX", 0, 2, 4, 3, Q("6.3 mm")),
    Sketcher.Constraint("DistanceX", 4, 3, -1, 1, Q("16.65 mm")),
    Sketcher.Constraint("DistanceX", 0, 2, 0, 1, Q("12.991981 mm")),
])
pad7 = doc.addObject("PartDesign::Pad", "Pad006")
body.addObject(pad7)
pad7.Profile = sketch10
pad7.Length = 0.5

doc.recompute()
